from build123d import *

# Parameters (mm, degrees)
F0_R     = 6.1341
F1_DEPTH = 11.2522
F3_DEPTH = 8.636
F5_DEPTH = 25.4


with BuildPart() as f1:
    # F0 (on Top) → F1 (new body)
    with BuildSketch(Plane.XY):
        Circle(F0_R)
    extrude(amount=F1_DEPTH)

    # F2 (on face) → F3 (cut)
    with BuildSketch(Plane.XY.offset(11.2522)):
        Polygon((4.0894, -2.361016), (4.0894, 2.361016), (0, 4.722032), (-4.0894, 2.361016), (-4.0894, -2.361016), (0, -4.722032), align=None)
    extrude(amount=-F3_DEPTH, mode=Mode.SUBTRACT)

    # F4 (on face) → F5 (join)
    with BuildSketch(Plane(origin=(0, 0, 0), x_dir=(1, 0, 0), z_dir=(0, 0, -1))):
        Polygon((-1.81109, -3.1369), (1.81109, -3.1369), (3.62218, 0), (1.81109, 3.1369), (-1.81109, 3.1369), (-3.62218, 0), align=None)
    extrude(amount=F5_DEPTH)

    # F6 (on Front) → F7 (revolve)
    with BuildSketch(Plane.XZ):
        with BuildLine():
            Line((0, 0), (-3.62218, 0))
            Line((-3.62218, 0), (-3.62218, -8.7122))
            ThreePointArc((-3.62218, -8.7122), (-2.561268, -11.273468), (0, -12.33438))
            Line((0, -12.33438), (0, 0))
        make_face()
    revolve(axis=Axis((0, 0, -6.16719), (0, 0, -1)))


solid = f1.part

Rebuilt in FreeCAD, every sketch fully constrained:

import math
import FreeCAD as App
import Part
import Sketcher

V = App.Vector
Q = App.Units.Quantity


def add_polygon(sketch, points):
    """Adds a closed chain of lines whose ends are joined by coincident constraints."""
    first, n = sketch.GeometryCount, len(points)
    for a, b in zip(points, points[1:] + points[:1]):
        sketch.addGeometry(Part.LineSegment(App.Vector(*a, 0), App.Vector(*b, 0)), False)
    for i in range(n):
        sketch.addConstraint(Sketcher.Constraint("Coincident", first + i, 2, first + (i + 1) % n, 1))

doc = App.newDocument("Part")
body = doc.addObject("PartDesign::Body", "Body")

# Sketch on XY plane
sketch1 = doc.addObject("Sketcher::SketchObject", "Sketch")
body.addObject(sketch1)
sketch1.AttachmentSupport = (doc.XY_Plane, [""])
sketch1.MapMode = "FlatFace"
sketch1.addGeometry(Part.Circle(V(0, 0, 0), V(0, 0, 1), 6), False)
sketch1.addConstraint([
    Sketcher.Constraint("Coincident", 0, 3, -1, 1),
    Sketcher.Constraint("Diameter", 0, Q("0.483 in")),
])
pad1 = doc.addObject("PartDesign::Pad", "Pad")
body.addObject(pad1)
pad1.Profile = sketch1
pad1.Length = Q("0.443 in")

# Sketch on XY plane
sketch2 = doc.addObject("Sketcher::SketchObject", "Sketch001")
body.addObject(sketch2)
sketch2.AttachmentSupport = (doc.XY_Plane, [""])
sketch2.MapMode = "FlatFace"
sketch2.AttachmentOffset = App.Placement(V(0, 0, 0.443 * 25.4), App.Rotation())
add_polygon(sketch2, [(4.1, -2.4), (4.1, 2.4), (0, 4.7), (-4.1, 2.4), (-4.1, -2.4), (0, -4.7)])  # lines 0-5
sketch2.addConstraint([
    Sketcher.Constraint("Vertical", 0),
    Sketcher.Constraint("Vertical", 3),
    Sketcher.Constraint("Symmetric", 0, 2, 3, 2, -1, 1),
    Sketcher.Constraint("Symmetric", 1, 2, 4, 2, -1, 1),
    Sketcher.Constraint("PointOnObject", 1, 2, -2),
    Sketcher.Constraint("Parallel", 2, 5),
    Sketcher.Constraint("Horizontal", 0, 2, 2, 2),
    Sketcher.Constraint("Angle", 1, Q("150.000002 deg")),
    Sketcher.Constraint("DistanceX", -1, 1, 0, 2, Q("0.161 in")),
    Sketcher.Constraint("DistanceY", 0, 1, 0, 2, Q("4.722032 mm")),
])
pocket1 = doc.addObject("PartDesign::Pocket", "Pocket")
body.addObject(pocket1)
pocket1.Profile = sketch2
pocket1.Length = Q("0.34 in")

# Sketch on XY plane
sketch3 = doc.addObject("Sketcher::SketchObject", "Sketch002")
body.addObject(sketch3)
sketch3.AttachmentSupport = (doc.XY_Plane, [""])
sketch3.MapMode = "FlatFace"
add_polygon(sketch3, [(-1.8, 3.1), (1.8, 3.1), (3.6, 0), (1.8, -3.1), (-1.8, -3.1), (-3.6, 0)])  # lines 0-5
sketch3.addConstraint([
    Sketcher.Constraint("Horizontal", 0),
    Sketcher.Constraint("Horizontal", 3),
    Sketcher.Constraint("Symmetric", 0, 2, 3, 2, -1, 1),
    Sketcher.Constraint("Symmetric", 1, 2, 4, 2, -1, 1),
    Sketcher.Constraint("PointOnObject", 1, 2, -1),
    Sketcher.Constraint("Parallel", 2, 5),
    Sketcher.Constraint("Vertical", 0, 2, 2, 2),
    Sketcher.Constraint("Angle", 1, Q("-60.000001 deg")),
    Sketcher.Constraint("DistanceY", 2, 2, 0, 2, Q("0.247 in")),
    Sketcher.Constraint("DistanceX", 0, 1, 0, 2, Q("3.62218 mm")),
])
pad2 = doc.addObject("PartDesign::Pad", "Pad001")
body.addObject(pad2)
pad2.Profile = sketch3
pad2.Length = Q("1 in")
pad2.Reversed = True

# Sketch on XZ plane
sketch4 = doc.addObject("Sketcher::SketchObject", "Sketch003")
body.addObject(sketch4)
sketch4.AttachmentSupport = (doc.XZ_Plane, [""])
sketch4.MapMode = "FlatFace"
sketch4.addGeometry([
    Part.LineSegment(V(0, 0, 0), V(-3.6, 0, 0)),
    Part.LineSegment(V(-3.6, 0, 0), V(-3.6, -8.7, 0)),
    Part.ArcOfCircle(Part.Circle(V(0, -8.7, 0), V(0, 0, 1), 3.6), math.radians(-180), math.radians(-90)),
    Part.LineSegment(V(0, -12.3, 0), V(0, 0, 0)),
], False)
sketch4.addConstraint([
    Sketcher.Constraint("Coincident", 0, 2, 1, 1),
    Sketcher.Constraint("Tangent", 1, 2, 2, 1),
    Sketcher.Constraint("Coincident", 2, 2, 3, 1),
    Sketcher.Constraint("Coincident", 3, 2, 0, 1),
    Sketcher.Constraint("Horizontal", 0),
    Sketcher.Constraint("Vertical", 1),
    Sketcher.Constraint("Vertical", 3),
    Sketcher.Constraint("Coincident", 3, 2, -1, 1),
    Sketcher.Constraint("PointOnObject", 2, 3, -2),
    Sketcher.Constraint("DistanceY", 1, 2, 1, 1, Q("0.343 in")),
    Sketcher.Constraint("Radius", 2, Q("3.62218 mm")),
])
revolution = doc.addObject("PartDesign::Revolution", "Revolution")
body.addObject(revolution)
revolution.Profile = sketch4
revolution.ReferenceAxis = (sketch4, ["V_Axis"])
revolution.Angle = 360

doc.recompute()
